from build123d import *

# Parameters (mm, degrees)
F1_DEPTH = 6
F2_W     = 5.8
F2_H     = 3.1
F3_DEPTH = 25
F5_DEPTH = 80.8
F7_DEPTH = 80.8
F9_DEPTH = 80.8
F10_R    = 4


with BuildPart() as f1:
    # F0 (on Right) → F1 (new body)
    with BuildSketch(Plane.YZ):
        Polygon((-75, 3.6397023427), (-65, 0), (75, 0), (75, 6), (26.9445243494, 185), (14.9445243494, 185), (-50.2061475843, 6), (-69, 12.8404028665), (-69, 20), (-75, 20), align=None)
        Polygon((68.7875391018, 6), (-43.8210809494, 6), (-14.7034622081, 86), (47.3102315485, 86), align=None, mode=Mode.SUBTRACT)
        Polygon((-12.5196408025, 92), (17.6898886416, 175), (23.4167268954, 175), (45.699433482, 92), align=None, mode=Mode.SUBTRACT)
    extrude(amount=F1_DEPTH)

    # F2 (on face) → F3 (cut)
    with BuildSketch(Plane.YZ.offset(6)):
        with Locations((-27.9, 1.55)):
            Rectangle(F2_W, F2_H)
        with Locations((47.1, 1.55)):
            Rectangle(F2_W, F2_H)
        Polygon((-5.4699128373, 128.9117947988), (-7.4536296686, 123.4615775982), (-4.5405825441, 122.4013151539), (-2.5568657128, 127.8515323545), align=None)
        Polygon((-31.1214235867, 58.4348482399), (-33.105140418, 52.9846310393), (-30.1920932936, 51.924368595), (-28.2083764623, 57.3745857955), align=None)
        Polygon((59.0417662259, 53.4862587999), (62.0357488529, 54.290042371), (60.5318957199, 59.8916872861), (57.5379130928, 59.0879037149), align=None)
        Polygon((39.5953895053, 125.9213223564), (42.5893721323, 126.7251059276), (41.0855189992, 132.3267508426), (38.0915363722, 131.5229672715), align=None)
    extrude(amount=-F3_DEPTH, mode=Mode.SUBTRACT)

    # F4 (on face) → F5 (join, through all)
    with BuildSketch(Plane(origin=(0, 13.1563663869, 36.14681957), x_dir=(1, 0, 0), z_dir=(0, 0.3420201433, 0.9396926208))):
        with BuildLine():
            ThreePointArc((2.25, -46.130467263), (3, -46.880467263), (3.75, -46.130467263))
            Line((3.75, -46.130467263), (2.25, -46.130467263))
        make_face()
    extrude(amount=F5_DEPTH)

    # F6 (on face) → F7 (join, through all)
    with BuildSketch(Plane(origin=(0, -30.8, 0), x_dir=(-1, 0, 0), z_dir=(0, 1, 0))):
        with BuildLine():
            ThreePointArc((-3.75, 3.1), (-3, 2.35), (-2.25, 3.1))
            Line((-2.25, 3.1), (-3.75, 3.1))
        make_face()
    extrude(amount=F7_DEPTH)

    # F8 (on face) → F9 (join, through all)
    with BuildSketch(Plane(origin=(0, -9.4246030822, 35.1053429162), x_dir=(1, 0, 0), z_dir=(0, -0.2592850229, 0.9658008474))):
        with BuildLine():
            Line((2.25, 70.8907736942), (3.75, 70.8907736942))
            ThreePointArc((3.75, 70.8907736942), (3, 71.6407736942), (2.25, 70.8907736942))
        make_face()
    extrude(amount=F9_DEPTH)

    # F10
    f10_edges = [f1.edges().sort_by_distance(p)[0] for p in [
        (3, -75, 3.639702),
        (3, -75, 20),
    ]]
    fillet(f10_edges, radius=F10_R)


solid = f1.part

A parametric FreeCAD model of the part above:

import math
import FreeCAD as App
import Part
import Sketcher
from FreeCAD import Vector
Q = App.Units.Quantity


def edges_at(feature, points):
    """Names of the edges that pass closest to the given points."""
    edges = feature.Shape.Edges
    near = lambda p: min(range(len(edges)), key=lambda i: edges[i].distToShape(Part.Vertex(*p))[0])
    return sorted({f"Edge{near(p) + 1}" for p in points})

doc = App.newDocument("Part")
body = doc.addObject("PartDesign::Body", "Body")

sketch1 = body.newObject("Sketcher::SketchObject", "Sketch")
sketch1.AttachmentSupport = (doc.getObject("YZ_Plane"), [""])
sketch1.MapMode = "FlatFace"
sketch1.addGeometry(Part.LineSegment(Vector(-75, 4, 0), Vector(-65, 0, 0)), False)
sketch1.addGeometry(Part.LineSegment(Vector(-65, 0, 0), Vector(75, 0, 0)), False)
sketch1.addGeometry(Part.LineSegment(Vector(75, 0, 0), Vector(75, 6, 0)), False)
sketch1.addGeometry(Part.LineSegment(Vector(75, 6, 0), Vector(27, 185, 0)), False)
sketch1.addGeometry(Part.LineSegment(Vector(27, 185, 0), Vector(15, 185, 0)), False)
sketch1.addGeometry(Part.LineSegment(Vector(15, 185, 0), Vector(-50, 6, 0)), False)
sketch1.addGeometry(Part.LineSegment(Vector(-50, 6, 0), Vector(-69, 13, 0)), False)
sketch1.addGeometry(Part.LineSegment(Vector(-69, 13, 0), Vector(-69, 20, 0)), False)
sketch1.addGeometry(Part.LineSegment(Vector(-69, 20, 0), Vector(-75, 20, 0)), False)
sketch1.addGeometry(Part.LineSegment(Vector(-75, 20, 0), Vector(-75, 4, 0)), False)
sketch1.addGeometry(Part.LineSegment(Vector(47, 86, 0), Vector(69, 6, 0)), False)
sketch1.addGeometry(Part.LineSegment(Vector(69, 6, 0), Vector(-44, 6, 0)), False)
sketch1.addGeometry(Part.LineSegment(Vector(-44, 6, 0), Vector(-15, 86, 0)), False)
sketch1.addGeometry(Part.LineSegment(Vector(-15, 86, 0), Vector(47, 86, 0)), False)
sketch1.addGeometry(Part.LineSegment(Vector(46, 92, 0), Vector(-13, 92, 0)), False)
sketch1.addGeometry(Part.LineSegment(Vector(-13, 92, 0), Vector(18, 175, 0)), False)
sketch1.addGeometry(Part.LineSegment(Vector(18, 175, 0), Vector(23, 175, 0)), False)
sketch1.addGeometry(Part.LineSegment(Vector(23, 175, 0), Vector(46, 92, 0)), False)
sketch1.addConstraint(Sketcher.Constraint("Coincident", 0, 2, 1, 1))
sketch1.addConstraint(Sketcher.Constraint("Coincident", 1, 2, 2, 1))
sketch1.addConstraint(Sketcher.Constraint("Coincident", 2, 2, 3, 1))
sketch1.addConstraint(Sketcher.Constraint("Coincident", 3, 2, 4, 1))
sketch1.addConstraint(Sketcher.Constraint("Coincident", 4, 2, 5, 1))
sketch1.addConstraint(Sketcher.Constraint("Coincident", 5, 2, 6, 1))
sketch1.addConstraint(Sketcher.Constraint("Coincident", 6, 2, 7, 1))
sketch1.addConstraint(Sketcher.Constraint("Coincident", 7, 2, 8, 1))
sketch1.addConstraint(Sketcher.Constraint("Coincident", 8, 2, 9, 1))
sketch1.addConstraint(Sketcher.Constraint("Coincident", 9, 2, 0, 1))
sketch1.addConstraint(Sketcher.Constraint("Coincident", 10, 2, 11, 1))
sketch1.addConstraint(Sketcher.Constraint("Coincident", 11, 2, 12, 1))
sketch1.addConstraint(Sketcher.Constraint("Coincident", 12, 2, 13, 1))
sketch1.addConstraint(Sketcher.Constraint("Coincident", 13, 2, 10, 1))
sketch1.addConstraint(Sketcher.Constraint("Coincident", 14, 2, 15, 1))
sketch1.addConstraint(Sketcher.Constraint("Coincident", 15, 2, 16, 1))
sketch1.addConstraint(Sketcher.Constraint("Coincident", 16, 2, 17, 1))
sketch1.addConstraint(Sketcher.Constraint("Coincident", 17, 2, 14, 1))
sketch1.addConstraint(Sketcher.Constraint("Horizontal", 1))
sketch1.addConstraint(Sketcher.Constraint("Vertical", 2))
sketch1.addConstraint(Sketcher.Constraint("Horizontal", 4))
sketch1.addConstraint(Sketcher.Constraint("Vertical", 7))
sketch1.addConstraint(Sketcher.Constraint("Horizontal", 8))
sketch1.addConstraint(Sketcher.Constraint("Vertical", 9))
sketch1.addConstraint(Sketcher.Constraint("Horizontal", 11))
sketch1.addConstraint(Sketcher.Constraint("Horizontal", 13))
sketch1.addConstraint(Sketcher.Constraint("Horizontal", 14))
sketch1.addConstraint(Sketcher.Constraint("Horizontal", 16))
sketch1.addConstraint(Sketcher.Constraint("PointOnObject", 0, 2, -1))
sketch1.addConstraint(Sketcher.Constraint("Perpendicular", 0, 5))
sketch1.addConstraint(Sketcher.Constraint("Perpendicular", 5, 6))
sketch1.addConstraint(Sketcher.Constraint("Parallel", 3, 10))
sketch1.addConstraint(Sketcher.Constraint("Perpendicular", 6, 12))
sketch1.addConstraint(Sketcher.Constraint("Parallel", 12, 15))
sketch1.addConstraint(Sketcher.Constraint("Parallel", 10, 17))
sketch1.addConstraint(Sketcher.Constraint("Horizontal", 2, 2, 5, 2))
sketch1.addConstraint(Sketcher.Constraint("Horizontal", 5, 2, 10, 2))
sketch1.addConstraint(Sketcher.Constraint("Equal", 8, 2))
sketch1.addConstraint(Sketcher.Constraint("DistanceX", 1, 1, 1, 2, Q("140 mm")))
sketch1.addConstraint(Sketcher.Constraint("DistanceX", 4, 2, 4, 1, Q("12 mm")))
sketch1.addConstraint(Sketcher.Constraint("DistanceX", 8, 2, 8, 1, Q("6 mm")))
sketch1.addConstraint(Sketcher.Constraint("Angle", 0, Q("-20 deg")))
sketch1.addConstraint(Sketcher.Constraint("Distance", 6, Q("20 mm")))
sketch1.addConstraint(Sketcher.Constraint("DistanceX", 0, 2, -1, 1, Q("65 mm")))
sketch1.addConstraint(Sketcher.Constraint("DistanceY", -1, 1, 3, 2, Q("185 mm")))
sketch1.addConstraint(Sketcher.Constraint("DistanceX", 6, 2, -1, 1, Q("69 mm")))
sketch1.addConstraint(Sketcher.Constraint("DistanceY", -1, 1, 7, 2, Q("20 mm")))
sketch1.addConstraint(Sketcher.Constraint("DistanceY", -1, 1, 12, 2, Q("86 mm")))
sketch1.addConstraint(Sketcher.Constraint("DistanceY", -1, 1, 14, 2, Q("92 mm")))
sketch1.addConstraint(Sketcher.Constraint("DistanceY", -1, 1, 15, 2, Q("175 mm")))
sketch1.addConstraint(Sketcher.Constraint("DistanceX", 11, 2, 11, 1, Q("112.60862 mm")))
sketch1.addConstraint(Sketcher.Constraint("DistanceX", 16, 1, 16, 2, Q("5.726838 mm")))
sketch1.addConstraint(Sketcher.Constraint("DistanceX", 17, 2, 13, 2, Q("1.610798 mm")))
sketch1.addConstraint(Sketcher.Constraint("DistanceX", -1, 1, 10, 2, Q("68.787539 mm")))
pad1 = body.newObject("PartDesign::Pad", "Pad")
pad1.Profile = sketch1
pad1.Length = 6

sketch2 = body.newObject("Sketcher::SketchObject", "Sketch001")
sketch2.AttachmentSupport = (doc.getObject("YZ_Plane"), [""])
sketch2.MapMode = "FlatFace"
sketch2.AttachmentOffset = App.Placement(Vector(0, 0, 6), App.Rotation())
sketch2.addGeometry(Part.LineSegment(Vector(-30.8, 3.1, 0), Vector(-30.8, 0, 0)), False)
sketch2.addGeometry(Part.LineSegment(Vector(-30.8, 0, 0), Vector(-25, 0, 0)), False)
sketch2.addGeometry(Part.LineSegment(Vector(-25, 0, 0), Vector(-25, 3.1, 0)), False)
sketch2.addGeometry(Part.LineSegment(Vector(-25, 3.1, 0), Vector(-30.8, 3.1, 0)), False)
sketch2.addGeometry(Part.LineSegment(Vector(44.2, 3.1, 0), Vector(44.2, 0, 0)), False)
sketch2.addGeometry(Part.LineSegment(Vector(44.2, 0, 0), Vector(50, 0, 0)), False)
sketch2.addGeometry(Part.LineSegment(Vector(50, 0, 0), Vector(50, 3.1, 0)), False)
sketch2.addGeometry(Part.LineSegment(Vector(50, 3.1, 0), Vector(44.2, 3.1, 0)), False)
sketch2.addGeometry(Part.LineSegment(Vector(-5.5, 128.9, 0), Vector(-7.5, 123.5, 0)), False)
sketch2.addGeometry(Part.LineSegment(Vector(-7.5, 123.5, 0), Vector(-4.5, 122.4, 0)), False)
sketch2.addGeometry(Part.LineSegment(Vector(-4.5, 122.4, 0), Vector(-2.6, 127.9, 0)), False)
sketch2.addGeometry(Part.LineSegment(Vector(-2.6, 127.9, 0), Vector(-5.5, 128.9, 0)), False)
sketch2.addGeometry(Part.LineSegment(Vector(-31.1, 58.4, 0), Vector(-33.1, 53, 0)), False)
sketch2.addGeometry(Part.LineSegment(Vector(-33.1, 53, 0), Vector(-30.2, 51.9, 0)), False)
sketch2.addGeometry(Part.LineSegment(Vector(-30.2, 51.9, 0), Vector(-28.2, 57.4, 0)), False)
sketch2.addGeometry(Part.LineSegment(Vector(-28.2, 57.4, 0), Vector(-31.1, 58.4, 0)), False)
sketch2.addGeometry(Part.LineSegment(Vector(59, 53.5, 0), Vector(62, 54.3, 0)), False)
sketch2.addGeometry(Part.LineSegment(Vector(62, 54.3, 0), Vector(60.5, 59.9, 0)), False)
sketch2.addGeometry(Part.LineSegment(Vector(60.5, 59.9, 0), Vector(57.5, 59.1, 0)), False)
sketch2.addGeometry(Part.LineSegment(Vector(57.5, 59.1, 0), Vector(59, 53.5, 0)), False)
sketch2.addGeometry(Part.LineSegment(Vector(39.6, 125.9, 0), Vector(42.6, 126.7, 0)), False)
sketch2.addGeometry(Part.LineSegment(Vector(42.6, 126.7, 0), Vector(41.1, 132.3, 0)), False)
sketch2.addGeometry(Part.LineSegment(Vector(41.1, 132.3, 0), Vector(38.1, 131.5, 0)), False)
sketch2.addGeometry(Part.LineSegment(Vector(38.1, 131.5, 0), Vector(39.6, 125.9, 0)), False)
sketch2.addConstraint(Sketcher.Constraint("Coincident", 0, 2, 1, 1))
sketch2.addConstraint(Sketcher.Constraint("Coincident", 1, 2, 2, 1))
sketch2.addConstraint(Sketcher.Constraint("Coincident", 2, 2, 3, 1))
sketch2.addConstraint(Sketcher.Constraint("Coincident", 3, 2, 0, 1))
sketch2.addConstraint(Sketcher.Constraint("Coincident", 4, 2, 5, 1))
sketch2.addConstraint(Sketcher.Constraint("Coincident", 5, 2, 6, 1))
sketch2.addConstraint(Sketcher.Constraint("Coincident", 6, 2, 7, 1))
sketch2.addConstraint(Sketcher.Constraint("Coincident", 7, 2, 4, 1))
sketch2.addConstraint(Sketcher.Constraint("Coincident", 8, 2, 9, 1))
sketch2.addConstraint(Sketcher.Constraint("Coincident", 9, 2, 10, 1))
sketch2.addConstraint(Sketcher.Constraint("Coincident", 10, 2, 11, 1))
sketch2.addConstraint(Sketcher.Constraint("Coincident", 11, 2, 8, 1))
sketch2.addConstraint(Sketcher.Constraint("Coincident", 12, 2, 13, 1))
sketch2.addConstraint(Sketcher.Constraint("Coincident", 13, 2, 14, 1))
sketch2.addConstraint(Sketcher.Constraint("Coincident", 14, 2, 15, 1))
sketch2.addConstraint(Sketcher.Constraint("Coincident", 15, 2, 12, 1))
sketch2.addConstraint(Sketcher.Constraint("Coincident", 16, 2, 17, 1))
sketch2.addConstraint(Sketcher.Constraint("Coincident", 17, 2, 18, 1))
sketch2.addConstraint(Sketcher.Constraint("Coincident", 18, 2, 19, 1))
sketch2.addConstraint(Sketcher.Constraint("Coincident", 19, 2, 16, 1))
sketch2.addConstraint(Sketcher.Constraint("Coincident", 20, 2, 21, 1))
sketch2.addConstraint(Sketcher.Constraint("Coincident", 21, 2, 22, 1))
sketch2.addConstraint(Sketcher.Constraint("Coincident", 22, 2, 23, 1))
sketch2.addConstraint(Sketcher.Constraint("Coincident", 23, 2, 20, 1))
sketch2.addConstraint(Sketcher.Constraint("Vertical", 0))
sketch2.addConstraint(Sketcher.Constraint("Horizontal", 1))
sketch2.addConstraint(Sketcher.Constraint("Vertical", 2))
sketch2.addConstraint(Sketcher.Constraint("Horizontal", 3))
sketch2.addConstraint(Sketcher.Constraint("Vertical", 4))
sketch2.addConstraint(Sketcher.Constraint("Horizontal", 5))
sketch2.addConstraint(Sketcher.Constraint("Vertical", 6))
sketch2.addConstraint(Sketcher.Constraint("Horizontal", 7))
sketch2.addConstraint(Sketcher.Constraint("PointOnObject", 0, 2, -1))
sketch2.addConstraint(Sketcher.Constraint("PointOnObject", 4, 2, -1))
sketch2.addConstraint(Sketcher.Constraint("Perpendicular", 8, 9))
sketch2.addConstraint(Sketcher.Constraint("Perpendicular", 9, 10))
sketch2.addConstraint(Sketcher.Constraint("Perpendicular", 10, 11))
sketch2.addConstraint(Sketcher.Constraint("Perpendicular", 11, 12))
sketch2.addConstraint(Sketcher.Constraint("Perpendicular", 12, 13))
sketch2.addConstraint(Sketcher.Constraint("Perpendicular", 13, 14))
sketch2.addConstraint(Sketcher.Constraint("Perpendicular", 14, 15))
sketch2.addConstraint(Sketcher.Constraint("Perpendicular", 16, 17))
sketch2.addConstraint(Sketcher.Constraint("Perpendicular", 17, 18))
sketch2.addConstraint(Sketcher.Constraint("Perpendicular", 18, 19))
sketch2.addConstraint(Sketcher.Constraint("Perpendicular", 19, 20))
sketch2.addConstraint(Sketcher.Constraint("Perpendicular", 20, 21))
sketch2.addConstraint(Sketcher.Constraint("Perpendicular", 21, 22))
sketch2.addConstraint(Sketcher.Constraint("Perpendicular", 22, 23))
sketch2.addConstraint(Sketcher.Constraint("Horizontal", 3, 2, 6, 2))
sketch2.addConstraint(Sketcher.Constraint("Equal", 3, 5))
sketch2.addConstraint(Sketcher.Constraint("Equal", 10, 12))
sketch2.addConstraint(Sketcher.Constraint("Equal", 11, 13))
sketch2.addConstraint(Sketcher.Constraint("Equal", 15, 16))
sketch2.addConstraint(Sketcher.Constraint("Equal", 14, 17))
sketch2.addConstraint(Sketcher.Constraint("Equal", 18, 20))
sketch2.addConstraint(Sketcher.Constraint("Equal", 19, 21))
sketch2.addConstraint(Sketcher.Constraint("Angle", 8, Q("-110 deg")))
sketch2.addConstraint(Sketcher.Constraint("DistanceX", 1, 1, 1, 2, Q("5.8 mm")))
sketch2.addConstraint(Sketcher.Constraint("DistanceY", 0, 2, 0, 1, Q("3.1 mm")))
sketch2.addConstraint(Sketcher.Constraint("DistanceX", 1, 2, -1, 1, Q("25 mm")))
sketch2.addConstraint(Sketcher.Constraint("DistanceX", -1, 1, 5, 2, Q("50 mm")))
sketch2.addConstraint(Sketcher.Constraint("Distance", 8, Q("5.8 mm")))
sketch2.addConstraint(Sketcher.Constraint("Distance", 9, Q("3.1 mm")))
sketch2.addConstraint(Sketcher.Constraint("DistanceX", 8, 2, 20, 2, Q("50.043002 mm")))
sketch2.addConstraint(Sketcher.Constraint("DistanceX", 9, 2, 21, 2, Q("45.626102 mm")))
sketch2.addConstraint(Sketcher.Constraint("DistanceX", 8, 2, -1, 1, Q("7.45363 mm")))
sketch2.addConstraint(Sketcher.Constraint("DistanceX", 12, 2, -1, 1, Q("33.10514 mm")))
sketch2.addConstraint(Sketcher.Constraint("DistanceY", -1, 1, 12, 2, Q("52.984631 mm")))
sketch2.addConstraint(Sketcher.Constraint("DistanceX", -1, 1, 16, 2, Q("62.035749 mm")))
sketch2.addConstraint(Sketcher.Constraint("DistanceY", -1, 1, 19, 2, Q("53.486259 mm")))
sketch2.addConstraint(Sketcher.Constraint("DistanceY", -1, 1, 21, 2, Q("132.326751 mm")))
sketch2.addConstraint(Sketcher.Constraint("DistanceY", 9, 2, 20, 2, Q("4.323791 mm")))
pocket1 = body.newObject("PartDesign::Pocket", "Pocket")
pocket1.Profile = sketch2
pocket1.Length = 25

sketch3 = body.newObject("Sketcher::SketchObject", "Sketch002")
sketch3.Placement = App.Placement(Vector(0, 13.156366, 36.14682), App.Rotation(Vector(1, 0, 0), Vector(0, 0.939692621, -0.342020143), Vector(0, 0.342020143, 0.939692621), "ZXY"))
sketch3.addGeometry(Part.ArcOfCircle(Part.Circle(Vector(3, -46.1, 0), Vector(0, 0, 1), 0.8), math.radians(180), math.radians(360)), False)
sketch3.addGeometry(Part.LineSegment(Vector(3.8, -46.1, 0), Vector(2.2, -46.1, 0)), False)
sketch3.addConstraint(Sketcher.Constraint("Coincident", 0, 1, 1, 2))
sketch3.addConstraint(Sketcher.Constraint("Coincident", 1, 1, 0, 2))
sketch3.addConstraint(Sketcher.Constraint("Horizontal", 1))
sketch3.addConstraint(Sketcher.Constraint("Radius", 0, Q("0.75 mm")))
sketch3.addConstraint(Sketcher.Constraint("DistanceX", -1, 1, 0, 3, Q("3 mm")))
sketch3.addConstraint(Sketcher.Constraint("DistanceY", 0, 3, -1, 1, Q("46.130467 mm")))
sketch3.addConstraint(Sketcher.Constraint("DistanceY", 0, 1, -1, 1, Q("46.130467 mm")))
pad2 = body.newObject("PartDesign::Pad", "Pad001")
pad2.Profile = sketch3
pad2.Type = "UpToLast"

sketch4 = body.newObject("Sketcher::SketchObject", "Sketch003")
sketch4.AttachmentSupport = (doc.getObject("XZ_Plane"), [""])
sketch4.MapMode = "FlatFace"
sketch4.AttachmentOffset = App.Placement(Vector(0, 0, 30.8), App.Rotation())
sketch4.addGeometry(Part.ArcOfCircle(Part.Circle(Vector(3, 3.1, 0), Vector(0, 0, 1), 0.8), math.radians(180), math.radians(360)), False)
sketch4.addGeometry(Part.LineSegment(Vector(2.2, 3.1, 0), Vector(3.8, 3.1, 0)), False)
sketch4.addConstraint(Sketcher.Constraint("Coincident", 0, 1, 1, 1))
sketch4.addConstraint(Sketcher.Constraint("Coincident", 1, 2, 0, 2))
sketch4.addConstraint(Sketcher.Constraint("Horizontal", 1))
sketch4.addConstraint(Sketcher.Constraint("Radius", 0, Q("0.75 mm")))
sketch4.addConstraint(Sketcher.Constraint("DistanceX", -1, 1, 0, 3, Q("3 mm")))
sketch4.addConstraint(Sketcher.Constraint("DistanceY", -1, 1, 0, 3, Q("3.1 mm")))
sketch4.addConstraint(Sketcher.Constraint("DistanceY", -1, 1, 0, 1, Q("3.1 mm")))
pad3 = body.newObject("PartDesign::Pad", "Pad002")
pad3.Profile = sketch4
pad3.Type = "UpToLast"
pad3.Reversed = True

sketch5 = body.newObject("Sketcher::SketchObject", "Sketch004")
sketch5.Placement = App.Placement(Vector(0, -9.424603, 35.105343), App.Rotation(Vector(1, 0, 0), Vector(0, 0.965800847, 0.259285023), Vector(0, -0.259285023, 0.965800847), "ZXY"))
sketch5.addGeometry(Part.LineSegment(Vector(2.2, 70.9, 0), Vector(3.8, 70.9, 0)), False)
sketch5.addGeometry(Part.ArcOfCircle(Part.Circle(Vector(3, 70.9, 0), Vector(0, 0, 1), 0.8), math.radians(0), math.radians(180)), False)
sketch5.addConstraint(Sketcher.Constraint("Coincident", 0, 1, 1, 2))
sketch5.addConstraint(Sketcher.Constraint("Coincident", 1, 1, 0, 2))
sketch5.addConstraint(Sketcher.Constraint("Horizontal", 0))
sketch5.addConstraint(Sketcher.Constraint("Horizontal", 1, 3, 0, 1))
sketch5.addConstraint(Sketcher.Constraint("Radius", 1, Q("0.75 mm")))
sketch5.addConstraint(Sketcher.Constraint("DistanceX", -1, 1, 1, 3, Q("3 mm")))
sketch5.addConstraint(Sketcher.Constraint("DistanceY", -1, 1, 1, 3, Q("70.890774 mm")))
pad4 = body.newObject("PartDesign::Pad", "Pad003")
pad4.Profile = sketch5
pad4.Type = "UpToLast"
doc.recompute()

fillet = body.newObject("PartDesign::Fillet", "Fillet")
fillet.Base = (pad4, edges_at(pad4, [(3, -75, 3.64), (3, -75, 20)]))
fillet.Radius = 4

doc.recompute()
